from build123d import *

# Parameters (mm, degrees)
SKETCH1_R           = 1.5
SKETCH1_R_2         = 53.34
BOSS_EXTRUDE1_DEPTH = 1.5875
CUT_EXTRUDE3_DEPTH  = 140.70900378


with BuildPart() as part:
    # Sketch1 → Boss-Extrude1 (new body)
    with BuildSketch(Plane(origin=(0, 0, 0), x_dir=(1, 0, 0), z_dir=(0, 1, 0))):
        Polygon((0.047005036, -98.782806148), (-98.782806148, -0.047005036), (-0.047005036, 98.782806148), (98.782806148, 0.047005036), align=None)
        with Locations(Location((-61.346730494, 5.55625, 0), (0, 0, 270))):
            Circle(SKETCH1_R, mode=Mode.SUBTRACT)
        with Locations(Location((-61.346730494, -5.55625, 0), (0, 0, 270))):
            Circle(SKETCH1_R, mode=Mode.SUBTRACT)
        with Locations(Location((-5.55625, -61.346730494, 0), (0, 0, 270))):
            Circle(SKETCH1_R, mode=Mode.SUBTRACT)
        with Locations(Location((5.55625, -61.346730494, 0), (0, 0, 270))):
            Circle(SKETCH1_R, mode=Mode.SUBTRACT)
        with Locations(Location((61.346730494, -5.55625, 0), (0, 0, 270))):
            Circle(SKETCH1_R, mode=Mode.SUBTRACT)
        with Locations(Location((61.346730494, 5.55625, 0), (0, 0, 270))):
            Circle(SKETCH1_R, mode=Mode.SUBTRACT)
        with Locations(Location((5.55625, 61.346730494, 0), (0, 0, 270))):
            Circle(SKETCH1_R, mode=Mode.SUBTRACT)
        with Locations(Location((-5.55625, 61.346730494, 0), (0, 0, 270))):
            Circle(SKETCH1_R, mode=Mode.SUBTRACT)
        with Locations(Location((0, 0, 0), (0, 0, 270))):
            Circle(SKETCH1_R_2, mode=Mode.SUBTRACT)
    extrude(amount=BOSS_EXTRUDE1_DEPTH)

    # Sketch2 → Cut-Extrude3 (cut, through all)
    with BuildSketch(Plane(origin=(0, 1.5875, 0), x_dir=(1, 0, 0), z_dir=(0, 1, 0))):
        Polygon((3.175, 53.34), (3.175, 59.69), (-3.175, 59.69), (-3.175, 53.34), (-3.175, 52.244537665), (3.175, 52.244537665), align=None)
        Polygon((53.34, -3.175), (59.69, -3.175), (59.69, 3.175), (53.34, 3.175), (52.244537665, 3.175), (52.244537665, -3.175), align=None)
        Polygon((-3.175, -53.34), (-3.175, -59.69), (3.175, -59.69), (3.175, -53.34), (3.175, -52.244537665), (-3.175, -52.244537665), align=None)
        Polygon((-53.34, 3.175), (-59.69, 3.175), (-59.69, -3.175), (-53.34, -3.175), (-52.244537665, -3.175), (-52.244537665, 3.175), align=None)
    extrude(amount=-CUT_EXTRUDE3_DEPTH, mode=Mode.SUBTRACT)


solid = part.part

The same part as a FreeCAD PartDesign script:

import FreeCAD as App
import Part
import Sketcher

V = App.Vector
Q = App.Units.Quantity

doc = App.newDocument("Part")
params = doc.addObject("Spreadsheet::Sheet", "Params")
for row, (alias, value) in enumerate([
    ("sketch1_diameter", "4.2 in"),
    ("sketch1_length", "5.5 in"),
    ("pad1_length", "0.0625 in"),
    ("sketch2_width", "0.25 in"),
], start=1):
    params.set(f"A{row}", alias)
    params.set(f"B{row}", "=" + value)
    params.setAlias(f"B{row}", alias)

body = doc.addObject("PartDesign::Body", "Body")

sketch1 = body.newObject("Sketcher::SketchObject", "Sketch")
sketch1.AttachmentSupport = (doc.getObject("XZ_Plane"), [""])
sketch1.MapMode = "FlatFace"
sketch1.addGeometry([
    Part.LineSegment(V(-98.8, 0, 0), V(0, 98.8, 0)),
    Part.LineSegment(V(0, 98.8, 0), V(98.8, 0, 0)),
    Part.LineSegment(V(98.8, 0, 0), V(0, -98.8, 0)),
    Part.LineSegment(V(0, -98.8, 0), V(-98.8, 0, 0)),
    Part.Circle(V(5.6, 61.3, 0), V(0, 0, 1), 1.5),
    Part.Circle(V(61.3, 5.6, 0), V(0, 0, 1), 1.5),
    Part.Circle(V(-5.6, 61.3, 0), V(0, 0, 1), 1.5),
    Part.Circle(V(-61.3, 5.6, 0), V(0, 0, 1), 1.5),
    Part.Circle(V(61.3, -5.6, 0), V(0, 0, 1), 1.5),
    Part.Circle(V(5.6, -61.3, 0), V(0, 0, 1), 1.5),
    Part.Circle(V(0, 0, 0), V(0, 0, 1), 53.3),
    Part.Circle(V(-61.3, -5.6, 0), V(0, 0, 1), 1.5),
    Part.Circle(V(-5.6, -61.3, 0), V(0, 0, 1), 1.5),
], False)
sketch1.addConstraint([
    Sketcher.Constraint("Coincident", 0, 2, 1, 1),
    Sketcher.Constraint("Coincident", 1, 2, 2, 1),
    Sketcher.Constraint("Coincident", 2, 2, 3, 1),
    Sketcher.Constraint("Coincident", 3, 2, 0, 1),
    Sketcher.Constraint("Coincident", 10, 3, -1, 1),
    Sketcher.Constraint("Equal", 4, 5),
    Sketcher.Constraint("Equal", 5, 6),
    Sketcher.Constraint("Equal", 6, 7),
    Sketcher.Constraint("Equal", 7, 8),
    Sketcher.Constraint("Equal", 8, 9),
    Sketcher.Constraint("Equal", 9, 11),
    Sketcher.Constraint("Equal", 11, 12),
    Sketcher.Constraint("Symmetric", 7, 3, 8, 3, -1, 1),
    Sketcher.Constraint("Symmetric", 6, 3, 9, 3, -1, 1),
    Sketcher.Constraint("Symmetric", 5, 3, 11, 3, -1, 1),
    Sketcher.Constraint("Symmetric", 4, 3, 12, 3, -1, 1),
    Sketcher.Constraint("Symmetric", 0, 2, 2, 2, -1, 1),
    Sketcher.Constraint("Symmetric", 1, 2, 3, 2, -1, 1),
    Sketcher.Constraint("Symmetric", 4, 3, 6, 3, -2),
    Sketcher.Constraint("Symmetric", 5, 3, 7, 3, -2),
    Sketcher.Constraint("Perpendicular", 0, 1),
    Sketcher.Constraint("Equal", 0, 1),
    Sketcher.Constraint("Diameter", 10, Q("4.2 in")),
    Sketcher.Constraint("Distance", 0, Q("5.5 in")),
    Sketcher.Constraint("Diameter", 4, Q("3 mm")),
    Sketcher.Constraint("DistanceX", -1, 1, 4, 3, Q("0.21875 in")),
    Sketcher.Constraint("DistanceY", -1, 1, 5, 3, Q("0.21875 in")),
    Sketcher.Constraint("DistanceY", -1, 1, 4, 3, Q("61.34673 mm")),
    Sketcher.Constraint("DistanceX", -1, 1, 5, 3, Q("61.34673 mm")),
    Sketcher.Constraint("DistanceX", -1, 1, 0, 2, Q("0.047005 mm")),
])
sketch1.setExpression("Constraints[22]", "Params.sketch1_diameter")
sketch1.setExpression("Constraints[23]", "Params.sketch1_length")
pad1 = body.newObject("PartDesign::Pad", "Pad")
pad1.Profile = sketch1
pad1.setExpression("Length", "Params.pad1_length")
pad1.Reversed = True

sketch2 = body.newObject("Sketcher::SketchObject", "Sketch001")
sketch2.AttachmentSupport = (doc.getObject("XZ_Plane"), [""])
sketch2.MapMode = "FlatFace"
sketch2.AttachmentOffset = App.Placement(V(0, 0, -0.0625 * 25.4), App.Rotation())
sketch2.addGeometry([
    Part.LineSegment(V(3, -60, 0), V(-3, -60, 0)),
    Part.LineSegment(V(-3, -60, 0), V(-3, -52, 0)),
    Part.LineSegment(V(-3, -52, 0), V(3, -52, 0)),
    Part.LineSegment(V(3, -52, 0), V(3, -60, 0)),
    Part.LineSegment(V(60, 3, 0), V(60, -3, 0)),
    Part.LineSegment(V(60, -3, 0), V(52, -3, 0)),
    Part.LineSegment(V(52, -3, 0), V(52, 3, 0)),
    Part.LineSegment(V(52, 3, 0), V(60, 3, 0)),
    Part.LineSegment(V(-3, 60, 0), V(3, 60, 0)),
    Part.LineSegment(V(3, 60, 0), V(3, 52, 0)),
    Part.LineSegment(V(3, 52, 0), V(-3, 52, 0)),
    Part.LineSegment(V(-3, 52, 0), V(-3, 60, 0)),
    Part.LineSegment(V(-60, -3, 0), V(-60, 3, 0)),
    Part.LineSegment(V(-60, 3, 0), V(-52, 3, 0)),
    Part.LineSegment(V(-52, 3, 0), V(-52, -3, 0)),
    Part.LineSegment(V(-52, -3, 0), V(-60, -3, 0)),
], False)
sketch2.addConstraint([
    Sketcher.Constraint("Coincident", 0, 2, 1, 1),
    Sketcher.Constraint("Coincident", 1, 2, 2, 1),
    Sketcher.Constraint("Coincident", 2, 2, 3, 1),
    Sketcher.Constraint("Coincident", 3, 2, 0, 1),
    Sketcher.Constraint("Coincident", 4, 2, 5, 1),
    Sketcher.Constraint("Coincident", 5, 2, 6, 1),
    Sketcher.Constraint("Coincident", 6, 2, 7, 1),
    Sketcher.Constraint("Coincident", 7, 2, 4, 1),
    Sketcher.Constraint("Coincident", 8, 2, 9, 1),
    Sketcher.Constraint("Coincident", 9, 2, 10, 1),
    Sketcher.Constraint("Coincident", 10, 2, 11, 1),
    Sketcher.Constraint("Coincident", 11, 2, 8, 1),
    Sketcher.Constraint("Coincident", 12, 2, 13, 1),
    Sketcher.Constraint("Coincident", 13, 2, 14, 1),
    Sketcher.Constraint("Coincident", 14, 2, 15, 1),
    Sketcher.Constraint("Coincident", 15, 2, 12, 1),
    Sketcher.Constraint("Horizontal", 0),
    Sketcher.Constraint("Vertical", 1),
    Sketcher.Constraint("Horizontal", 2),
    Sketcher.Constraint("Vertical", 3),
    Sketcher.Constraint("Vertical", 4),
    Sketcher.Constraint("Horizontal", 5),
    Sketcher.Constraint("Vertical", 6),
    Sketcher.Constraint("Horizontal", 7),
    Sketcher.Constraint("Horizontal", 8),
    Sketcher.Constraint("Vertical", 9),
    Sketcher.Constraint("Horizontal", 10),
    Sketcher.Constraint("Vertical", 11),
    Sketcher.Constraint("Vertical", 12),
    Sketcher.Constraint("Horizontal", 13),
    Sketcher.Constraint("Vertical", 14),
    Sketcher.Constraint("Horizontal", 15),
    Sketcher.Constraint("Symmetric", 0, 2, 8, 2, -1, 1),
    Sketcher.Constraint("Symmetric", 2, 2, 10, 2, -1, 1),
    Sketcher.Constraint("Symmetric", 4, 2, 12, 2, -1, 1),
    Sketcher.Constraint("Symmetric", 6, 2, 14, 2, -1, 1),
    Sketcher.Constraint("Horizontal", 7, 2, 12, 2),
    Sketcher.Constraint("Vertical", 3, 2, 8, 2),
    Sketcher.Constraint("Equal", 15, 1),
    Sketcher.Constraint("Equal", 10, 4),
    Sketcher.Constraint("DistanceX", 0, 2, 0, 1, Q("0.25 in")),
    Sketcher.Constraint("DistanceY", 0, 2, -1, 1, Q("2.35 in")),
    Sketcher.Constraint("DistanceX", -1, 1, 4, 2, Q("2.35 in")),
    Sketcher.Constraint("DistanceX", 5, 2, 5, 1, Q("7.445462 mm")),
])
sketch2.setExpression("Constraints[40]", "Params.sketch2_width")
pocket1 = body.newObject("PartDesign::Pocket", "Pocket")
pocket1.Profile = sketch2
pocket1.Type = "ThroughAll"
pocket1.Reversed = True

doc.recompute()
